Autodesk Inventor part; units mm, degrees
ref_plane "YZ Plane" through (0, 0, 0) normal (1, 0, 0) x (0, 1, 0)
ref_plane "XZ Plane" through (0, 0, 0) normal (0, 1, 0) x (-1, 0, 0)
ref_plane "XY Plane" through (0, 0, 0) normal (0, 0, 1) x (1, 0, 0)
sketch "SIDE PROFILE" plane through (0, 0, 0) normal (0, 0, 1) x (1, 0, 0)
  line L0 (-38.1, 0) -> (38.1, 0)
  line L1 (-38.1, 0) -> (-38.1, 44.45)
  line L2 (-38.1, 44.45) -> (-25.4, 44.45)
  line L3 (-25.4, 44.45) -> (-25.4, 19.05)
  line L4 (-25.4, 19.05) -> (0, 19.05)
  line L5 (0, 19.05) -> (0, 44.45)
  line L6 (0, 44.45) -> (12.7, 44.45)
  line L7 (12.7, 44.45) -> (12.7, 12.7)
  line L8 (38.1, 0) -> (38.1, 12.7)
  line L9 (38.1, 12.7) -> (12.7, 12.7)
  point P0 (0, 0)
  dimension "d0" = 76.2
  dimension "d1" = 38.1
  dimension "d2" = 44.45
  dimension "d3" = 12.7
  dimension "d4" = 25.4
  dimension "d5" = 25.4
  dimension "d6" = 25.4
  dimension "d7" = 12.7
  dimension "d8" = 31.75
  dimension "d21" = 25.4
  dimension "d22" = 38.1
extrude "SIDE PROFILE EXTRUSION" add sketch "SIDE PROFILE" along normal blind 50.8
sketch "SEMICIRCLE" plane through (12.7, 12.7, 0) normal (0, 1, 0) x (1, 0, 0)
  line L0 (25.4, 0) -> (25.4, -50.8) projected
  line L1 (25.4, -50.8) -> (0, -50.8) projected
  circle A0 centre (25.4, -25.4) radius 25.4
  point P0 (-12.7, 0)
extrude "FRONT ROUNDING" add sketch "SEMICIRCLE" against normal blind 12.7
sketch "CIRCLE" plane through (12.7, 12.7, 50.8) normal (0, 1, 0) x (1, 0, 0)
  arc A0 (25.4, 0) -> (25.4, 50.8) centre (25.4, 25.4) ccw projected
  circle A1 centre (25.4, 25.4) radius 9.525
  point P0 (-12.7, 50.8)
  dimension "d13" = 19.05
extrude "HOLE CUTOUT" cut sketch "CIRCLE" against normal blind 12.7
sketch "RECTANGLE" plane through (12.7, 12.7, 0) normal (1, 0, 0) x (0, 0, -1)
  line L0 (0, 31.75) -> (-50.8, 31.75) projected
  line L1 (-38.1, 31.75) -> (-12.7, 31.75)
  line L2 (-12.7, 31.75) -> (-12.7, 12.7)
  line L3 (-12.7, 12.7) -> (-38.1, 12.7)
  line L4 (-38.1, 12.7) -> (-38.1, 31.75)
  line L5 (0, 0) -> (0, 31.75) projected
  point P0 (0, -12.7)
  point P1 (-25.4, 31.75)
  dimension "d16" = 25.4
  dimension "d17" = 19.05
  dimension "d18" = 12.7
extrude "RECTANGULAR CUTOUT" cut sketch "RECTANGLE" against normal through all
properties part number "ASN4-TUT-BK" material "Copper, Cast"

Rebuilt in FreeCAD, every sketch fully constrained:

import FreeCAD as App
import Part
import Sketcher
Q = App.Units.Quantity


def add_polygon(sketch, points):
    """Adds a closed chain of lines whose ends are joined by coincident constraints."""
    first, n = sketch.GeometryCount, len(points)
    for a, b in zip(points, points[1:] + points[:1]):
        sketch.addGeometry(Part.LineSegment(App.Vector(*a, 0), App.Vector(*b, 0)), False)
    for i in range(n):
        sketch.addConstraint(Sketcher.Constraint("Coincident", first + i, 2, first + (i + 1) % n, 1))

doc = App.newDocument("Part")
body = doc.addObject("PartDesign::Body", "Body")

# Sketch on XY plane
sketch1 = body.newObject("Sketcher::SketchObject", "Sketch")
sketch1.AttachmentSupport = (doc.getObject("XY_Plane"), [""])
sketch1.MapMode = "FlatFace"
add_polygon(sketch1, [(-38, 44), (-38, 0), (38, 0), (38, 13), (13, 13), (13, 44), (0, 44), (0, 19), (-25, 19), (-25, 44)])  # lines 0-9
sketch1.addConstraint([
    Sketcher.Constraint("Vertical", 0),
    Sketcher.Constraint("Horizontal", 1),
    Sketcher.Constraint("Vertical", 2),
    Sketcher.Constraint("Horizontal", 3),
    Sketcher.Constraint("Vertical", 4),
    Sketcher.Constraint("Horizontal", 5),
    Sketcher.Constraint("Vertical", 6),
    Sketcher.Constraint("Horizontal", 7),
    Sketcher.Constraint("Vertical", 8),
    Sketcher.Constraint("Horizontal", 9),
    Sketcher.Constraint("Symmetric", 0, 2, 1, 2, -1, 1),
    Sketcher.Constraint("PointOnObject", 5, 2, -2),
    Sketcher.Constraint("Horizontal", 5, 2, 8, 2),
    Sketcher.Constraint("Equal", 3, 7),
    Sketcher.Constraint("Equal", 9, 2),
    Sketcher.Constraint("Equal", 7, 6),
    Sketcher.Constraint("DistanceX", 1, 1, 1, 2, Q("3 in")),
    Sketcher.Constraint("DistanceX", 3, 2, 3, 1, Q("1 in")),
    Sketcher.Constraint("DistanceY", 0, 2, 0, 1, Q("1.75 in")),
])
pad1 = body.newObject("PartDesign::Pad", "Pad")
pad1.Profile = sketch1
pad1.Length = Q("2 in")

# Sketch on XZ plane
sketch2 = body.newObject("Sketcher::SketchObject", "Sketch001")
sketch2.AttachmentSupport = (doc.getObject("XZ_Plane"), [""])
sketch2.MapMode = "FlatFace"
sketch2.AttachmentOffset = App.Placement(App.Vector(0, 0, -0.5 * 25.4), App.Rotation())
sketch2.addGeometry(Part.Circle(App.Vector(38, 25, 0), App.Vector(0, 0, 1), 25), False)
sketch2.addConstraint([
    Sketcher.Constraint("Diameter", 0, Q("2 in")),
    Sketcher.Constraint("DistanceY", -1, 1, 0, 3, Q("1 in")),
    Sketcher.Constraint("DistanceX", -1, 1, 0, 3, Q("1.5 in")),
])
pad2 = body.newObject("PartDesign::Pad", "Pad001")
pad2.Profile = sketch2
pad2.Length = Q("0.5 in")

# Sketch on XZ plane
sketch3 = body.newObject("Sketcher::SketchObject", "Sketch002")
sketch3.AttachmentSupport = (doc.getObject("XZ_Plane"), [""])
sketch3.MapMode = "FlatFace"
sketch3.AttachmentOffset = App.Placement(App.Vector(0, 0, -0.5 * 25.4), App.Rotation())
sketch3.addGeometry(Part.Circle(App.Vector(38, 25, 0), App.Vector(0, 0, 1), 10), False)
sketch3.addConstraint([
    Sketcher.Constraint("Diameter", 0, Q("0.75 in")),
    Sketcher.Constraint("DistanceY", -1, 1, 0, 3, Q("1 in")),
    Sketcher.Constraint("DistanceX", -1, 1, 0, 3, Q("1.5 in")),
])
pocket1 = body.newObject("PartDesign::Pocket", "Pocket")
pocket1.Profile = sketch3
pocket1.Length = Q("0.5 in")
pocket1.Reversed = True

# Sketch on YZ plane
sketch4 = body.newObject("Sketcher::SketchObject", "Sketch003")
sketch4.AttachmentSupport = (doc.getObject("YZ_Plane"), [""])
sketch4.MapMode = "FlatFace"
sketch4.AttachmentOffset = App.Placement(App.Vector(0, 0, 0.5 * 25.4), App.Rotation())
add_polygon(sketch4, [(25, 13), (44, 13), (44, 38), (25, 38)])  # lines 0-3
sketch4.addConstraint([
    Sketcher.Constraint("Horizontal", 0),
    Sketcher.Constraint("Vertical", 1),
    Sketcher.Constraint("Horizontal", 2),
    Sketcher.Constraint("Vertical", 3),
    Sketcher.Constraint("DistanceY", 1, 1, 1, 2, Q("1 in")),
    Sketcher.Constraint("DistanceX", -1, 1, 2, 2, Q("1 in")),
    Sketcher.Constraint("DistanceX", 0, 1, 0, 2, Q("0.75 in")),
    Sketcher.Constraint("DistanceY", -1, 1, 0, 2, Q("0.5 in")),
])
pocket2 = body.newObject("PartDesign::Pocket", "Pocket001")
pocket2.Profile = sketch4
pocket2.Type = "ThroughAll"

doc.recompute()
